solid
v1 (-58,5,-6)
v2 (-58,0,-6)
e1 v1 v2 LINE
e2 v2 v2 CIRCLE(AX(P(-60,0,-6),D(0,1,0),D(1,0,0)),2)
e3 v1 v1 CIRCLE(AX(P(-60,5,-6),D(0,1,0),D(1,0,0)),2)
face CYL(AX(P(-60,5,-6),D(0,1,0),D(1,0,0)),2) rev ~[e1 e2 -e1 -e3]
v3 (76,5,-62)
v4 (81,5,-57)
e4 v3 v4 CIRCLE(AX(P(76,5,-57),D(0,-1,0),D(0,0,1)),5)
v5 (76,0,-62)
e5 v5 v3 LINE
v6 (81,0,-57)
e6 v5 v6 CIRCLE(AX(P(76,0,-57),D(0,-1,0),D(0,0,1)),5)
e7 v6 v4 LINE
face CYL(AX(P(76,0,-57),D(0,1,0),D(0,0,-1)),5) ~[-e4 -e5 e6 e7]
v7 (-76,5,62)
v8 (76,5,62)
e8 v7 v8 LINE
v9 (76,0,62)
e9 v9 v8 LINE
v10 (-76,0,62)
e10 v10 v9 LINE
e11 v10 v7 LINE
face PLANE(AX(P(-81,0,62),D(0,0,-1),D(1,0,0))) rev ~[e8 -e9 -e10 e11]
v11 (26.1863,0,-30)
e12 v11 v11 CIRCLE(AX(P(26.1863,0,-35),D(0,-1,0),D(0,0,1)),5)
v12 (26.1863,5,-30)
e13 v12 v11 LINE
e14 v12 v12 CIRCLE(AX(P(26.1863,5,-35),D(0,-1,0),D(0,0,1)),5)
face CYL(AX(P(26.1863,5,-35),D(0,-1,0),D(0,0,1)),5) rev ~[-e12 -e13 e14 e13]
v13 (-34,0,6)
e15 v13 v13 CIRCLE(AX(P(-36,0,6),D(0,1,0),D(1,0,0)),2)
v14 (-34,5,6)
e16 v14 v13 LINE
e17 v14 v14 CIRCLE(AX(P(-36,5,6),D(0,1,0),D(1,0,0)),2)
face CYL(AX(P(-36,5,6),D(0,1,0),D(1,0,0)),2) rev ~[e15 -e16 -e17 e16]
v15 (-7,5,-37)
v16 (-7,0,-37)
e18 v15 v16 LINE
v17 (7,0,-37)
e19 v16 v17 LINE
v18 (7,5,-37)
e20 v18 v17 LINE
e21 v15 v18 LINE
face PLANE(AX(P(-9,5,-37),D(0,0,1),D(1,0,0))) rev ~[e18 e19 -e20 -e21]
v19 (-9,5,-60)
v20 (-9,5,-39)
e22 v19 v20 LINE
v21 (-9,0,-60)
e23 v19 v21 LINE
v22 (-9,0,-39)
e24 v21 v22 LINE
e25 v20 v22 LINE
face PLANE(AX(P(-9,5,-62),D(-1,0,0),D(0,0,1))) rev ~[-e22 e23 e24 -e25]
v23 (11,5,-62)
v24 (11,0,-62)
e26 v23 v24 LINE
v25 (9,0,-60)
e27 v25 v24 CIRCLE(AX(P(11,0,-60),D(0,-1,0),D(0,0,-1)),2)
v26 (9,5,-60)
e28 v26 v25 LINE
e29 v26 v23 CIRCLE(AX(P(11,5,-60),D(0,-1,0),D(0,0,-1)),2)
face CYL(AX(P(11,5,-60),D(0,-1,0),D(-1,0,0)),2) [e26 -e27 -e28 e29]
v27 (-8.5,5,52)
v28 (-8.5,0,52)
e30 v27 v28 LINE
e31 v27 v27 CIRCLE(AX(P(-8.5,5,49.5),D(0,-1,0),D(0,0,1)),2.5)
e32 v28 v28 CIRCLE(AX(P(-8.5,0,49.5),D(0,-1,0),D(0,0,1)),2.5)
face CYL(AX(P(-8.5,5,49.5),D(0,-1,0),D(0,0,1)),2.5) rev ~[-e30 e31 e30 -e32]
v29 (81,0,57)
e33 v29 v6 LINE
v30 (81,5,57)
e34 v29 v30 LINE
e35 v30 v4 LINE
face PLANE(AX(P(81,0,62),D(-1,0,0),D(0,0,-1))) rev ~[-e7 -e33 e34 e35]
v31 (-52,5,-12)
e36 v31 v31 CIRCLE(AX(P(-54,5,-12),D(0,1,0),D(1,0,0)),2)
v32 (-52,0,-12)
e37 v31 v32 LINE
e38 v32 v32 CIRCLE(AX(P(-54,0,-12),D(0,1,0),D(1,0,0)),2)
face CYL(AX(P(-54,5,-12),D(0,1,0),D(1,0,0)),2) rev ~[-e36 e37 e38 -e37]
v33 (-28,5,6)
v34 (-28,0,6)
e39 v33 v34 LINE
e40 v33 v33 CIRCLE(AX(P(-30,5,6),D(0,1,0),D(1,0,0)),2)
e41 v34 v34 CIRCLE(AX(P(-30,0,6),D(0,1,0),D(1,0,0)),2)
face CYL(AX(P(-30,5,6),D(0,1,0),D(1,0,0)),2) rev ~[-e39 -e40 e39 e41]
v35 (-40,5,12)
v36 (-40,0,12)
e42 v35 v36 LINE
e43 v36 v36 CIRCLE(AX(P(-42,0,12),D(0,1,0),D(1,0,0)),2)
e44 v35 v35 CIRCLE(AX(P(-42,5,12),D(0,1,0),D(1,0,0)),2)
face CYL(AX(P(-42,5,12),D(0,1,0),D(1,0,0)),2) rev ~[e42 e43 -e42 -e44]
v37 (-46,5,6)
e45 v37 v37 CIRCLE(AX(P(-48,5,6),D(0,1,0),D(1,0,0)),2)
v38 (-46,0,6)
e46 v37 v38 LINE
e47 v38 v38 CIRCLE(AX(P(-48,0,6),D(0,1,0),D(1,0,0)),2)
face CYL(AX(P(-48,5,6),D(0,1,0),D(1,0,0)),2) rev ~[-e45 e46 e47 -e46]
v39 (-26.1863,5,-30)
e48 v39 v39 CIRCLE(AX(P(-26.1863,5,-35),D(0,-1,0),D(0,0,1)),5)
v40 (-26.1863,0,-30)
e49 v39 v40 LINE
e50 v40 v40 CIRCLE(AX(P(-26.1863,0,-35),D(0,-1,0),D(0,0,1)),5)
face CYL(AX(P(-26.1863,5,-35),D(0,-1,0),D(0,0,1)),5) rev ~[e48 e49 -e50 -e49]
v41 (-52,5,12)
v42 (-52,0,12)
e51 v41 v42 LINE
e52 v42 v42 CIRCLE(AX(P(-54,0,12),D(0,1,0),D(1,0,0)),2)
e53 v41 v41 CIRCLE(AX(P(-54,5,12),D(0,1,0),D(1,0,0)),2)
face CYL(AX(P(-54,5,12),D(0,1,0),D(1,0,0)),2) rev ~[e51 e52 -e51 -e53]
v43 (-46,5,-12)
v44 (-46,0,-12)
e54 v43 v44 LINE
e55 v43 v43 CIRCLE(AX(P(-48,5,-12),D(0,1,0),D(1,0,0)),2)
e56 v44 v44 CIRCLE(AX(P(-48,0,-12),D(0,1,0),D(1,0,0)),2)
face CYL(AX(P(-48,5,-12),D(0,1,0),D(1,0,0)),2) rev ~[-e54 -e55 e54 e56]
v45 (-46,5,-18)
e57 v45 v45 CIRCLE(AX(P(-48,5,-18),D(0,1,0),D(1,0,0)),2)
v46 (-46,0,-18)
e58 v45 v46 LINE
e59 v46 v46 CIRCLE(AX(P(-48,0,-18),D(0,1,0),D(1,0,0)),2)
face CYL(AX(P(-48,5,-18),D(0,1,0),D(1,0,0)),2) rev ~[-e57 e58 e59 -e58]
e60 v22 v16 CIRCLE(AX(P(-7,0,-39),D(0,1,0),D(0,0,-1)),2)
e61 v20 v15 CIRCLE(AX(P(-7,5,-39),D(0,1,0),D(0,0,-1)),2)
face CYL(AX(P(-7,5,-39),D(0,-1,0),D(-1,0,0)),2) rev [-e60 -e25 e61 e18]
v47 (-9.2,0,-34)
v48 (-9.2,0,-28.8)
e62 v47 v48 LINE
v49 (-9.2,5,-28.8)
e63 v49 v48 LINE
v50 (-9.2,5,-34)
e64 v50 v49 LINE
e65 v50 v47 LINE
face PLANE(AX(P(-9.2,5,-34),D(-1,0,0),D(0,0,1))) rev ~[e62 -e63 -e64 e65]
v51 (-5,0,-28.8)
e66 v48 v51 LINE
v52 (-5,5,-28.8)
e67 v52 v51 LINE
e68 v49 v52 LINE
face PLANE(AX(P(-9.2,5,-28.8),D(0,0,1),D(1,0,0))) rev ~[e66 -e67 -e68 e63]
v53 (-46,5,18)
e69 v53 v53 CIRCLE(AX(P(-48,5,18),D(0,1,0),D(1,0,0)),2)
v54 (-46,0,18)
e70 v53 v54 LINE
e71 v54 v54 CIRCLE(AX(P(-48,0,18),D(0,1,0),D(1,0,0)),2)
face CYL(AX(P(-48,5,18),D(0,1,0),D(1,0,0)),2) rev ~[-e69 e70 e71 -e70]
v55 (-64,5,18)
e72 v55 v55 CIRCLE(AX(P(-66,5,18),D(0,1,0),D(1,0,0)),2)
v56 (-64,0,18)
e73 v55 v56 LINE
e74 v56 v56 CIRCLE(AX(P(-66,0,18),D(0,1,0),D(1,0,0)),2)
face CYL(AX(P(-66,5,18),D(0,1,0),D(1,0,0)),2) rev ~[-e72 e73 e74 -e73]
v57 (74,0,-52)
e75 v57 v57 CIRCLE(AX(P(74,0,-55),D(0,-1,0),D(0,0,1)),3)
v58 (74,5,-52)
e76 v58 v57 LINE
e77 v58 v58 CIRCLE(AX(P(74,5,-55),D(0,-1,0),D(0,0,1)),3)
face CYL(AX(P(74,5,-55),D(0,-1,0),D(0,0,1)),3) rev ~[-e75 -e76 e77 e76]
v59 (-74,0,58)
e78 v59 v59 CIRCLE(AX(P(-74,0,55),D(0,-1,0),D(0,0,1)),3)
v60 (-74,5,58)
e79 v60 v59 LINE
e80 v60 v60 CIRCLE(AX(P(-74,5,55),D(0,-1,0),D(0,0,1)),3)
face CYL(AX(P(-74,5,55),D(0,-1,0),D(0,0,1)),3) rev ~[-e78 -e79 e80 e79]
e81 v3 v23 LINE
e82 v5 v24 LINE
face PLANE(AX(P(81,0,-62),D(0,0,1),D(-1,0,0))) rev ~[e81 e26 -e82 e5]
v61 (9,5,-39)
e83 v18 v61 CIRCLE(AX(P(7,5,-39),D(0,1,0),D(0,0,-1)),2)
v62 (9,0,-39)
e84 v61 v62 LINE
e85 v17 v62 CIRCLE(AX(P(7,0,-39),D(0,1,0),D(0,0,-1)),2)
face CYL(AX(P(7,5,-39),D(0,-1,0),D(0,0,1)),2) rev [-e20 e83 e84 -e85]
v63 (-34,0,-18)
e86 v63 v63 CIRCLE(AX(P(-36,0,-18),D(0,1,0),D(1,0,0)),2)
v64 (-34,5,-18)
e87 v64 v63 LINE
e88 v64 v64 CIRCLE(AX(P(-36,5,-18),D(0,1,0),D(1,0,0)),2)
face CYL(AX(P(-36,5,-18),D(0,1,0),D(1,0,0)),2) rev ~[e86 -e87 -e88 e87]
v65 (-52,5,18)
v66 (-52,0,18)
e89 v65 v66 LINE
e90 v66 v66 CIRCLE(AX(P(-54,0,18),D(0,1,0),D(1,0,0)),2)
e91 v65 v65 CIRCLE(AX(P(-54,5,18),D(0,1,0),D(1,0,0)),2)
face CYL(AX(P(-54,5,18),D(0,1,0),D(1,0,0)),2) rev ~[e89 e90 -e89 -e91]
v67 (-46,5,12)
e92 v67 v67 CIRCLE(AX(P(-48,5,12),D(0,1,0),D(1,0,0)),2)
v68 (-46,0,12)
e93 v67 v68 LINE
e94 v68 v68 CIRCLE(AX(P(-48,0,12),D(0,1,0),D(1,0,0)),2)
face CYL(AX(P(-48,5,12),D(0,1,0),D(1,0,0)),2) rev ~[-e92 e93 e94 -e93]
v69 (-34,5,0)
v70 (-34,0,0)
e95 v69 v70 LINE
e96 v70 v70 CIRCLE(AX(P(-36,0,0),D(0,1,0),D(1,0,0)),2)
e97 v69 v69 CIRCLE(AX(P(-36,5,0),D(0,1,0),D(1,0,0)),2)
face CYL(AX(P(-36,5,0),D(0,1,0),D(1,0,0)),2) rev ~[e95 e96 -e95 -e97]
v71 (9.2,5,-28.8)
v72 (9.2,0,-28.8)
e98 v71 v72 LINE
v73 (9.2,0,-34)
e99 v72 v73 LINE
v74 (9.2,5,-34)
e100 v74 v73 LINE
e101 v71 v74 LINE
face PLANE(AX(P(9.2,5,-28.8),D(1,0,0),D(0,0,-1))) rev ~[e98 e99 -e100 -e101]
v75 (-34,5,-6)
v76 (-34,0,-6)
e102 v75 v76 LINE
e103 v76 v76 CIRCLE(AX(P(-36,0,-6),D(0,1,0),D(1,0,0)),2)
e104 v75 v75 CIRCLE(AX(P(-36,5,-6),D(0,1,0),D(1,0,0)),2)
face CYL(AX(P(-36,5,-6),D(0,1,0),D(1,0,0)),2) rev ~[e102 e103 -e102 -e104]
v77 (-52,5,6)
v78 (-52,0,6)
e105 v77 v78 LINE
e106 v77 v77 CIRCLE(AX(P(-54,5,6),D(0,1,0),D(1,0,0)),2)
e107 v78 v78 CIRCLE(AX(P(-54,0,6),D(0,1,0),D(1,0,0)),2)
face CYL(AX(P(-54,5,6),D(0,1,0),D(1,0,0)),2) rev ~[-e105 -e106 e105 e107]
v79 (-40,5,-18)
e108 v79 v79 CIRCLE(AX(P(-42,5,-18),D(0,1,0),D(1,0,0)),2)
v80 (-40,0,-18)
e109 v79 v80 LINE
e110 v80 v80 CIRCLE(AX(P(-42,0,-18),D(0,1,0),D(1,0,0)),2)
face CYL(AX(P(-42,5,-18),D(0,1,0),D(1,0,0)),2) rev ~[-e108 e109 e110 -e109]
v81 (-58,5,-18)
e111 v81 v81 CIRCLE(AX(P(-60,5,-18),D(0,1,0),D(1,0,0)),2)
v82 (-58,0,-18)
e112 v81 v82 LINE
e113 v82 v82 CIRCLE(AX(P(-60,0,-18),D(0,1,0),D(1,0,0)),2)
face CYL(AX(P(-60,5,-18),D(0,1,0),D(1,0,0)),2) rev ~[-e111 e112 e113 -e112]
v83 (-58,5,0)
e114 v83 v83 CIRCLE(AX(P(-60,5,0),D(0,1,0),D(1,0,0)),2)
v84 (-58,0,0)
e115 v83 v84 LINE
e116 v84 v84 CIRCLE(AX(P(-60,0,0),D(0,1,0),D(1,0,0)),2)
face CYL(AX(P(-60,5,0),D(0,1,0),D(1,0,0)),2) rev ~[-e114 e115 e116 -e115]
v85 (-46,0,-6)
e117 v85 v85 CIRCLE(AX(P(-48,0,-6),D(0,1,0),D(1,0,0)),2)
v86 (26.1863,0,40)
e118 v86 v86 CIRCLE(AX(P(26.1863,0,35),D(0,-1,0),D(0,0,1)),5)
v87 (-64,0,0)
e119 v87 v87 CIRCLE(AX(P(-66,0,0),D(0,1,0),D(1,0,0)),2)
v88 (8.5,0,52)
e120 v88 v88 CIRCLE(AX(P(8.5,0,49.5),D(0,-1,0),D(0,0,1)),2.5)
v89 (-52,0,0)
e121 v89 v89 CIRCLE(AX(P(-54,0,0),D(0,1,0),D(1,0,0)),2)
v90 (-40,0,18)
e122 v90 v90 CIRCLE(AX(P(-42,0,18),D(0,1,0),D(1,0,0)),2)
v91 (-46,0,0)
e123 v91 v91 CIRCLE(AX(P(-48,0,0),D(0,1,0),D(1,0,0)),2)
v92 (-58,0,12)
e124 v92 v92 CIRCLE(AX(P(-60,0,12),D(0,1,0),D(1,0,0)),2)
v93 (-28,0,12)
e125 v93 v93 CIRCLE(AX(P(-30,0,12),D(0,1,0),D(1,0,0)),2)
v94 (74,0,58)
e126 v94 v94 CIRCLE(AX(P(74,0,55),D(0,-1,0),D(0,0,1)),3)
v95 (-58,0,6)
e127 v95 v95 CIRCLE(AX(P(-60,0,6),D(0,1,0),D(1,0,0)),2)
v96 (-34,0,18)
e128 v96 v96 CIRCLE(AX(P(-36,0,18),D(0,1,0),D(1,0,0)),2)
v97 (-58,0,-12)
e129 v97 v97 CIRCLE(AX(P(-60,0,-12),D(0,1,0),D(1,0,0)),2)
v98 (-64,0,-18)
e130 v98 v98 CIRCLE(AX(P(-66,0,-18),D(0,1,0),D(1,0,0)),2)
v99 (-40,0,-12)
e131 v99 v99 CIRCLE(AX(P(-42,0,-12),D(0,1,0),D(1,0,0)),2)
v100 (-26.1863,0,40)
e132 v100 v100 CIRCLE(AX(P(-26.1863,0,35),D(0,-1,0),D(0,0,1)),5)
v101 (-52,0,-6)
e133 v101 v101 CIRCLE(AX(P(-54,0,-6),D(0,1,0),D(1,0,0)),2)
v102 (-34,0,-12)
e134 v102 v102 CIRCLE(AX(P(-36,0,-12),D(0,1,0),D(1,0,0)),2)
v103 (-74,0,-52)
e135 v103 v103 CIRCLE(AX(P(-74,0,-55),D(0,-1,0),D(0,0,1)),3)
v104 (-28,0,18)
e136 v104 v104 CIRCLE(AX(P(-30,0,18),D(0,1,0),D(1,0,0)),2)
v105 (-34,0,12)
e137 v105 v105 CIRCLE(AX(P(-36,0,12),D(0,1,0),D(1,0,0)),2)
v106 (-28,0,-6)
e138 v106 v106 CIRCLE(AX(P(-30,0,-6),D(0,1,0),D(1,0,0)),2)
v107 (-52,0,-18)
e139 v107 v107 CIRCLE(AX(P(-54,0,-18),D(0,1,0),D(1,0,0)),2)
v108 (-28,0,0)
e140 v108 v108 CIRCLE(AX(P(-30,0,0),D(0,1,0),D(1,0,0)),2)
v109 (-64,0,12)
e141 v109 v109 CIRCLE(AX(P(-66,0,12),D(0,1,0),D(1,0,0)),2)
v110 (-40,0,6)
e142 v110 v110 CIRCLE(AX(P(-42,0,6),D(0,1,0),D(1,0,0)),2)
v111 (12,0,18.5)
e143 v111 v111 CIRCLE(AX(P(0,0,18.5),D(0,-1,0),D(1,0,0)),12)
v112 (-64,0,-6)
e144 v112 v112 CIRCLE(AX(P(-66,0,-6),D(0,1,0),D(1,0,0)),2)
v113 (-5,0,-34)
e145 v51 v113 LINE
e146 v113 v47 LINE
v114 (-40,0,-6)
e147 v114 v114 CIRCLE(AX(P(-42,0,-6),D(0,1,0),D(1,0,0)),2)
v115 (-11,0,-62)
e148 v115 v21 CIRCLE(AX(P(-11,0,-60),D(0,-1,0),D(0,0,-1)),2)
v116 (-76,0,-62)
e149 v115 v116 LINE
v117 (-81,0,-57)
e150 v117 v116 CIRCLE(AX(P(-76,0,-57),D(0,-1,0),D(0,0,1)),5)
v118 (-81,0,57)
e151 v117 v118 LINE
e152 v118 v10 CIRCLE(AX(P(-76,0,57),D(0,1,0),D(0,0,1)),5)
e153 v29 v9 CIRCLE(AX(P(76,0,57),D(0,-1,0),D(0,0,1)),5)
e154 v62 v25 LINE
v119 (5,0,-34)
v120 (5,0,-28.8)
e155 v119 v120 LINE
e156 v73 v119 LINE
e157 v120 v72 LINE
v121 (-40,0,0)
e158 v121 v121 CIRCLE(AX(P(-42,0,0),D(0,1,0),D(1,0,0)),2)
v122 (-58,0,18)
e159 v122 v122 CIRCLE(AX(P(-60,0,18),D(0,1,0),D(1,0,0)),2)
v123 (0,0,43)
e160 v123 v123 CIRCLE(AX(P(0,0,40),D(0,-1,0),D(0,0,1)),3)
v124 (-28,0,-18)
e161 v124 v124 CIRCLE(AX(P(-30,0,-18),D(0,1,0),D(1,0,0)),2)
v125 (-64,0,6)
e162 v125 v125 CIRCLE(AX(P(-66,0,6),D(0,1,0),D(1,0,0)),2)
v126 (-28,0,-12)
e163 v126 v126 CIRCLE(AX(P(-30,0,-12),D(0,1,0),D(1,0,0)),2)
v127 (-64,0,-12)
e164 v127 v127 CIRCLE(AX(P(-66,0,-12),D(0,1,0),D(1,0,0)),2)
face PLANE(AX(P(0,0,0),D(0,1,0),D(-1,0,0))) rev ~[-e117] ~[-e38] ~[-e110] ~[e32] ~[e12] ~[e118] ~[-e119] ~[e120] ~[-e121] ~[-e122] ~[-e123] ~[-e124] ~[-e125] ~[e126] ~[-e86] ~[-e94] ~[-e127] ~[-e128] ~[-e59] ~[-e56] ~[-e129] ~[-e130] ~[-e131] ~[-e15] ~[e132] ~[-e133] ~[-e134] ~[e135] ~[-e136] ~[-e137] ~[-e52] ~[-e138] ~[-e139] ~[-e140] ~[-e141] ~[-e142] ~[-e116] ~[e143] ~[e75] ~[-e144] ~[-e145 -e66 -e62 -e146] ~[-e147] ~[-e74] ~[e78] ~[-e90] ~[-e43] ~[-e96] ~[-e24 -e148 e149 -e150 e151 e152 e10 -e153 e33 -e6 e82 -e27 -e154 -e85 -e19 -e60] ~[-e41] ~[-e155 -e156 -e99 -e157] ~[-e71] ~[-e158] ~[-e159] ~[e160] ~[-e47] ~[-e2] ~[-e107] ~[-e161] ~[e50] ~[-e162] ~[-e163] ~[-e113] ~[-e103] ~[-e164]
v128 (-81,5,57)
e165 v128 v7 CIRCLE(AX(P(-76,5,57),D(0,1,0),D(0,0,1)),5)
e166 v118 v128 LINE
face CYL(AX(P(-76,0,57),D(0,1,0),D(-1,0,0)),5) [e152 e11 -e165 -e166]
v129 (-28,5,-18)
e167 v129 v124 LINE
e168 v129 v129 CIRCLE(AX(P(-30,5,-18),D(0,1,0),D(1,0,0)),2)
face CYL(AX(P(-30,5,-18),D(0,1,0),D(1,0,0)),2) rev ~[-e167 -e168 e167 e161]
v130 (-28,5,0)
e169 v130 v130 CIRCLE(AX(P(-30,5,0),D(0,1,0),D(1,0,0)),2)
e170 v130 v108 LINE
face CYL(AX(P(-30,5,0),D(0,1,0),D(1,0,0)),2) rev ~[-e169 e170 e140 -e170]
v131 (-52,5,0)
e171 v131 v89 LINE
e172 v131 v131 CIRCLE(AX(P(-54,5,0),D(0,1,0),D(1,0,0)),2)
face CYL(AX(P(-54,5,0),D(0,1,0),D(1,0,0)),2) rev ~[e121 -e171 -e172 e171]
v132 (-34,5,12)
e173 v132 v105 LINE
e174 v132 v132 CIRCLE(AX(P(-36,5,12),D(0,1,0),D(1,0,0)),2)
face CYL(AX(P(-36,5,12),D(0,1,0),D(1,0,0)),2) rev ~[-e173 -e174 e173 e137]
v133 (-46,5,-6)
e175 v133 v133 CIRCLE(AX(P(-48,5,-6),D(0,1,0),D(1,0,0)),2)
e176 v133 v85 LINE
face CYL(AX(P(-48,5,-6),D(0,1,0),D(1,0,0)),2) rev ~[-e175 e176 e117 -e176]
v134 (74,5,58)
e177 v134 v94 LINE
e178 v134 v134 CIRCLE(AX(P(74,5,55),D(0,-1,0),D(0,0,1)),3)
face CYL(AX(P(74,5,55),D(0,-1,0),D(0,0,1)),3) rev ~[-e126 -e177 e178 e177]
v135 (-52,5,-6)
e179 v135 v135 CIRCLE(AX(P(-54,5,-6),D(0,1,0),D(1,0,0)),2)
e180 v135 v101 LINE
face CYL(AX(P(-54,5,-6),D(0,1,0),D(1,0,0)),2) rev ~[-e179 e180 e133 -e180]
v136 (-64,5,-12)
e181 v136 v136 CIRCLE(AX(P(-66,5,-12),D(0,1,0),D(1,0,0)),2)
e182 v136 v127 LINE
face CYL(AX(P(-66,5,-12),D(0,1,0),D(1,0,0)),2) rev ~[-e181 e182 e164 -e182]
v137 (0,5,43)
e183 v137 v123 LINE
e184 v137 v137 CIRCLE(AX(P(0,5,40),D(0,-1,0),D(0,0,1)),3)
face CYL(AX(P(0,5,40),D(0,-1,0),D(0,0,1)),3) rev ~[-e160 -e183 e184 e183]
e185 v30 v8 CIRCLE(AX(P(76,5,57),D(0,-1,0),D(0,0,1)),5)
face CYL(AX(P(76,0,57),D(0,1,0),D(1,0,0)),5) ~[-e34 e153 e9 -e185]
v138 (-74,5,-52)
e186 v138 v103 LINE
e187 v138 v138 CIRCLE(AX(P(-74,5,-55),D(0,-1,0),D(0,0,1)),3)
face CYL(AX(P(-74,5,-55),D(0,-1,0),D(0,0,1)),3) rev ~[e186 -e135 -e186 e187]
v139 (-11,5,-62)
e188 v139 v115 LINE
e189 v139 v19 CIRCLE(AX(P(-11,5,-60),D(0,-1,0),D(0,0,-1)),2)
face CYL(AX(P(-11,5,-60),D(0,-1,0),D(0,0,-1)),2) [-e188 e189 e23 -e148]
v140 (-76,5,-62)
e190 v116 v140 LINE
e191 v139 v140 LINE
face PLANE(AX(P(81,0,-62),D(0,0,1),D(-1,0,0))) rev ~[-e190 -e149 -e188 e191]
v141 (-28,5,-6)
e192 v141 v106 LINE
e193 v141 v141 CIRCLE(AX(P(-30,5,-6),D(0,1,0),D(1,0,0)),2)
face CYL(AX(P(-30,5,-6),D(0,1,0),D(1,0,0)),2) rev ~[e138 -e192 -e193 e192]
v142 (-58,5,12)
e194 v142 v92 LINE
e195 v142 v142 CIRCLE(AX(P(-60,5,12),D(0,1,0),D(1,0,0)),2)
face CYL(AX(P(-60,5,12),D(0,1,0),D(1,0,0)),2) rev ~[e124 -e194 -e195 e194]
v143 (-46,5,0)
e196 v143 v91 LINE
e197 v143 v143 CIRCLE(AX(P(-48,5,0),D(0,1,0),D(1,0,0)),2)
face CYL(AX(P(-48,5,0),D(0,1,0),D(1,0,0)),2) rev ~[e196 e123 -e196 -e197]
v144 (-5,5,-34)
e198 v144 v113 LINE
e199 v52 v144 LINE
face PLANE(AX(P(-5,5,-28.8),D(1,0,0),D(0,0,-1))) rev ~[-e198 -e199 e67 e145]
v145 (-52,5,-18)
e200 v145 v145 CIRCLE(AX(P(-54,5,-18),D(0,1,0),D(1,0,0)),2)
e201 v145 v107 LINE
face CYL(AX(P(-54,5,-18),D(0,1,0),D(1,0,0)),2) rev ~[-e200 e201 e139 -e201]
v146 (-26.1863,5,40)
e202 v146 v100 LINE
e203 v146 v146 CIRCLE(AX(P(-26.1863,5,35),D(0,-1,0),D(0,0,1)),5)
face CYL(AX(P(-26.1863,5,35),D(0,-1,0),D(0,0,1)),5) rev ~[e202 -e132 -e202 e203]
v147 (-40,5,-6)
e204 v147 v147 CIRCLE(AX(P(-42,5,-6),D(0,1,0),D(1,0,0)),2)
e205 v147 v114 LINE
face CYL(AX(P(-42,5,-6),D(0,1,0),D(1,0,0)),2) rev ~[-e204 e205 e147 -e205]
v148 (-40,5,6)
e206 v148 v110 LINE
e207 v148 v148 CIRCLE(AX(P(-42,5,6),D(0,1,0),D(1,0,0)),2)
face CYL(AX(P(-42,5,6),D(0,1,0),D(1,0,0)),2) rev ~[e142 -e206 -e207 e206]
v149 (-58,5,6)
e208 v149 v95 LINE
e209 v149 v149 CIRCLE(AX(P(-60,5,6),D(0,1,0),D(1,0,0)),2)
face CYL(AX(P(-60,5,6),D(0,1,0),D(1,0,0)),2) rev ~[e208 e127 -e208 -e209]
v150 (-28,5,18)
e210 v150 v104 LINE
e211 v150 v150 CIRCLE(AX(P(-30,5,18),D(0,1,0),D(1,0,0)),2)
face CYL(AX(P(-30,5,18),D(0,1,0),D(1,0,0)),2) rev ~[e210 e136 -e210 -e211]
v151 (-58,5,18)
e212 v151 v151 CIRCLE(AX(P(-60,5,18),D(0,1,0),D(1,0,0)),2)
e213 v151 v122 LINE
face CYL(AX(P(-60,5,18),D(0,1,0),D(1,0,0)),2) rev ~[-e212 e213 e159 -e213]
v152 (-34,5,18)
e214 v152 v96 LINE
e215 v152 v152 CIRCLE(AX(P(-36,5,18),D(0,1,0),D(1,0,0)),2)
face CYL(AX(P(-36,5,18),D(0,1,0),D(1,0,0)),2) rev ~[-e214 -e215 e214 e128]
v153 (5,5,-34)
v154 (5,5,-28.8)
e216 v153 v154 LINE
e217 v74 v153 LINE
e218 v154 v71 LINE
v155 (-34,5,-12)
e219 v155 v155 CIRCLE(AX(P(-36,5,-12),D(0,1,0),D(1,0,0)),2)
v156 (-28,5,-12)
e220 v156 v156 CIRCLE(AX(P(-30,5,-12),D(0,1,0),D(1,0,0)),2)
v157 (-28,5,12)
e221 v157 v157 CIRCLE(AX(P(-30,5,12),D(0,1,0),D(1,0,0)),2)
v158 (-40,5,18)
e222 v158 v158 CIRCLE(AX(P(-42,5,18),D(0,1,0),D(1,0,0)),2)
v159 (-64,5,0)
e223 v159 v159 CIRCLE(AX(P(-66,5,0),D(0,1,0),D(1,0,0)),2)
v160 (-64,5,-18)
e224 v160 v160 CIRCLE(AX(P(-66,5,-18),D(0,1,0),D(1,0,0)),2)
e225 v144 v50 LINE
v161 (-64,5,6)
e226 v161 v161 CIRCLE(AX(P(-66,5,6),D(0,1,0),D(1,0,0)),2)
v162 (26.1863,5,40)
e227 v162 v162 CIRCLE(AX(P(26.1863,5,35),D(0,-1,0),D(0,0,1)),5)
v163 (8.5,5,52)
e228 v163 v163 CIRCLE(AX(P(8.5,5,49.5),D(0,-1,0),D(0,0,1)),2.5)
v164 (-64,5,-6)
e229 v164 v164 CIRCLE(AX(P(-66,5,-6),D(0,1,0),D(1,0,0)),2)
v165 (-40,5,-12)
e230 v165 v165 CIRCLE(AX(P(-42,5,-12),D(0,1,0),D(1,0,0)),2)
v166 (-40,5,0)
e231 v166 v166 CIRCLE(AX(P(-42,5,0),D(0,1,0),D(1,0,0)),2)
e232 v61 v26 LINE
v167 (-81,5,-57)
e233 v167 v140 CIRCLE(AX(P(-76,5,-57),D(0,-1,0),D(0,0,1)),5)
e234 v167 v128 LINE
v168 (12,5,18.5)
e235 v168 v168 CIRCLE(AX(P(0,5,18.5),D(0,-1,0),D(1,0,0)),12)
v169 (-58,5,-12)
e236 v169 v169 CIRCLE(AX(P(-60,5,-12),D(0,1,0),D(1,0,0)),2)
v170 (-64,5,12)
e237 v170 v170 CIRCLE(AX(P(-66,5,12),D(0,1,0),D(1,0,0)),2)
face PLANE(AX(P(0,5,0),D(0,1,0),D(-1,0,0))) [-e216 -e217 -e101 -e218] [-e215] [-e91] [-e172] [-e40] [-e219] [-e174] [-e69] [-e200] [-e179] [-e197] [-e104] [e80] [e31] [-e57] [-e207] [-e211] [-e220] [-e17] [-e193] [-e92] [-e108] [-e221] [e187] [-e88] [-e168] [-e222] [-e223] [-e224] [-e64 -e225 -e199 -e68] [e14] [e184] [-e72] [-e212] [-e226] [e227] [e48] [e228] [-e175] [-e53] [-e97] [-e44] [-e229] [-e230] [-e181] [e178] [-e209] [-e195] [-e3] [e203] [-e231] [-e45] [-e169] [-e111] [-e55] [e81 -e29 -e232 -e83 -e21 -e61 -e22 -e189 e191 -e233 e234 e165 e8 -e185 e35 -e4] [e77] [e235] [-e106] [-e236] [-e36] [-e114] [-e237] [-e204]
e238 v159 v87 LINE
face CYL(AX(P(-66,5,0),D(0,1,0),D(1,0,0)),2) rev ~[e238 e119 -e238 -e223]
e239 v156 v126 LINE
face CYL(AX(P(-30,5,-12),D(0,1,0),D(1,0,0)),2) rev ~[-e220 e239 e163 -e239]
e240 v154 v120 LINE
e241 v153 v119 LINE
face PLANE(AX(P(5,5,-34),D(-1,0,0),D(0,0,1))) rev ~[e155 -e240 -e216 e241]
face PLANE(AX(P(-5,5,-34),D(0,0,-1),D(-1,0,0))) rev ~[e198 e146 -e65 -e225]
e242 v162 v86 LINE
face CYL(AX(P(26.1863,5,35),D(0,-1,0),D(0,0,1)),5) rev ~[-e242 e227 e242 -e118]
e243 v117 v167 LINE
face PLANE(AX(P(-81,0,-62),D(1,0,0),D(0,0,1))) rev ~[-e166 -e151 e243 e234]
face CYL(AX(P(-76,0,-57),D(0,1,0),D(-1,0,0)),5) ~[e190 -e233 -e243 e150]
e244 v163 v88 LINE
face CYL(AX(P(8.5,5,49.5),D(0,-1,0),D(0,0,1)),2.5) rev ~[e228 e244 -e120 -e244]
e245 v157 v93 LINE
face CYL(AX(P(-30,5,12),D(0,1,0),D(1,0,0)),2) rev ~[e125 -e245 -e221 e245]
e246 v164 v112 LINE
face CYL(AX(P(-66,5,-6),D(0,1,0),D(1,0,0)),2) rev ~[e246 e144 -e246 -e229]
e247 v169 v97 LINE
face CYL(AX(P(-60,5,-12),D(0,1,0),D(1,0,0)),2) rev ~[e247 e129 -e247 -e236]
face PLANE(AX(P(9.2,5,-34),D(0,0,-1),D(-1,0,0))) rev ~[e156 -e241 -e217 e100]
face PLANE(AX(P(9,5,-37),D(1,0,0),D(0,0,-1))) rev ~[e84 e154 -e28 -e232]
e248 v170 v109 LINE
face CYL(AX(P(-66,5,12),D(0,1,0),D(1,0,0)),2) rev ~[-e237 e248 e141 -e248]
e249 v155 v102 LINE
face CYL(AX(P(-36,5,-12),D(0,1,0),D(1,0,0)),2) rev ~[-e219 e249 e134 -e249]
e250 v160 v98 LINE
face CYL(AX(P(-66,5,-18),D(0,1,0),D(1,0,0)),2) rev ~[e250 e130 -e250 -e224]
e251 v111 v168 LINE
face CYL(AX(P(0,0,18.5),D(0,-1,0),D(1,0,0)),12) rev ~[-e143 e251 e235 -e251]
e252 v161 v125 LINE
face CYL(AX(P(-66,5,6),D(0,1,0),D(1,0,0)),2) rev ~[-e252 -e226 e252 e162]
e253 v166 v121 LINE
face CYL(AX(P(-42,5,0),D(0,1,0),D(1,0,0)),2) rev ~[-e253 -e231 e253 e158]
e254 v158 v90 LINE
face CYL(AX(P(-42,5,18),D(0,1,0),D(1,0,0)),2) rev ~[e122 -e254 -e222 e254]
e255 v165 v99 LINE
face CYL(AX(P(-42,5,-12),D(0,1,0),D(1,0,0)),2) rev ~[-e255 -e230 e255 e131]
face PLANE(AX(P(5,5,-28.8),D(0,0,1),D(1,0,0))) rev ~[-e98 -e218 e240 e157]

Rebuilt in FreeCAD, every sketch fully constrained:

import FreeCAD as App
import Part
import Sketcher
from FreeCAD import Vector
Q = App.Units.Quantity


def edges_at(feature, points):
    """Names of the edges that pass closest to the given points."""
    edges = feature.Shape.Edges
    near = lambda p: min(range(len(edges)), key=lambda i: edges[i].distToShape(Part.Vertex(*p))[0])
    return sorted({f"Edge{near(p) + 1}" for p in points})


def add_polygon(sketch, points):
    """Adds a closed chain of lines whose ends are joined by coincident constraints."""
    first, n = sketch.GeometryCount, len(points)
    for a, b in zip(points, points[1:] + points[:1]):
        sketch.addGeometry(Part.LineSegment(App.Vector(*a, 0), App.Vector(*b, 0)), False)
    for i in range(n):
        sketch.addConstraint(Sketcher.Constraint("Coincident", first + i, 2, first + (i + 1) % n, 1))

doc = App.newDocument("Part")
params = doc.addObject("Spreadsheet::Sheet", "Params")
for row, (alias, value) in enumerate([
    ("sketch1_width", "162 mm"),
    ("sketch1_height", "124 mm"),
    ("pad1_length", "5 mm"),
    ("fillet_radius", "5 mm"),
    ("sketch2_diameter", "6 mm"),
    ("hole_diameter", "6 mm"),
    ("sketch3_diameter", "10 mm"),
    ("hole2_diameter", "10 mm"),
    ("sketch4_diameter", "24 mm"),
    ("pocket1_length", "10 mm"),
    ("sketch5_width", "18 mm"),
    ("sketch5_height", "25 mm"),
    ("sketch6_diameter", "5 mm"),
    ("hole3_diameter", "5 mm"),
    ("sketch7_diameter", "6 mm"),
    ("hole4_diameter", "6 mm"),
    ("hole4_depth", "20 mm"),
    ("sketch8_width", "4.2 mm"),
    ("sketch8_height", "5.2 mm"),
    ("pocket3_length", "5 mm"),
    ("sketch9_diameter", "4 mm"),
    ("fillet2_radius", "2 mm"),
], start=1):
    params.set(f"A{row}", alias)
    params.set(f"B{row}", "=" + value)
    params.setAlias(f"B{row}", alias)

body = doc.addObject("PartDesign::Body", "Body")

sketch1 = body.newObject("Sketcher::SketchObject", "Sketch")
sketch1.AttachmentSupport = (doc.getObject("XZ_Plane"), [""])
sketch1.MapMode = "FlatFace"
add_polygon(sketch1, [(-81, -62), (-81, 62), (81, 62), (81, -62)])
sketch1.addConstraint([
    Sketcher.Constraint("Vertical", 0),
    Sketcher.Constraint("Horizontal", 1),
    Sketcher.Constraint("Vertical", 2),
    Sketcher.Constraint("Horizontal", 3),
    Sketcher.Constraint("Symmetric", 0, 2, 2, 2, -1, 1),
    Sketcher.Constraint("DistanceX", 1, 1, 1, 2, Q("162 mm")),
    Sketcher.Constraint("DistanceY", 0, 1, 0, 2, Q("124 mm")),
])
sketch1.setExpression("Constraints[9]", "Params.sketch1_width")
sketch1.setExpression("Constraints[10]", "Params.sketch1_height")
pad1 = body.newObject("PartDesign::Pad", "Pad")
pad1.Profile = sketch1
pad1.setExpression("Length", "Params.pad1_length")
pad1.Reversed = True
doc.recompute()

fillet = body.newObject("PartDesign::Fillet", "Fillet")
fillet.Base = (pad1, edges_at(pad1, [
    (81, 2.5, 62),
    (-81, 2.5, 62),
    (-81, 2.5, -62),
    (81, 2.5, -62),
]))
fillet.setExpression("Radius", "Params.fillet_radius")

sketch2 = body.newObject("Sketcher::SketchObject", "Sketch001")
sketch2.AttachmentSupport = (doc.getObject("XZ_Plane"), [""])
sketch2.MapMode = "FlatFace"
sketch2.AttachmentOffset = App.Placement(Vector(0, 0, -5), App.Rotation())
sketch2.addGeometry([
    Part.Circle(Vector(74, 55, 0), Vector(0, 0, 1), 3),
    Part.Circle(Vector(-74, 55, 0), Vector(0, 0, 1), 3),
    Part.Circle(Vector(74, -55, 0), Vector(0, 0, 1), 3),
    Part.Circle(Vector(-74, -55, 0), Vector(0, 0, 1), 3),
], False)
sketch2.addConstraint([
    Sketcher.Constraint("Equal", 0, 1),
    Sketcher.Constraint("Equal", 1, 2),
    Sketcher.Constraint("Equal", 2, 3),
    Sketcher.Constraint("Symmetric", 1, 3, 2, 3, -1, 1),
    Sketcher.Constraint("Symmetric", 0, 3, 3, 3, -1, 1),
    Sketcher.Constraint("Symmetric", 0, 3, 1, 3, -2),
    Sketcher.Constraint("Diameter", 0, Q("6 mm")),
    Sketcher.Constraint("DistanceX", -1, 1, 0, 3, Q("74 mm")),
    Sketcher.Constraint("DistanceY", -1, 1, 0, 3, Q("55 mm")),
])
sketch2.setExpression("Constraints[6]", "Params.sketch2_diameter")
doc.recompute()
hole = body.newObject("PartDesign::Hole", "Hole")
hole.Profile = sketch2
hole.ThreadType = "None"
hole.setExpression("Diameter", "Params.hole_diameter")
hole.DepthType = "ThroughAll"
hole.Reversed = True

sketch3 = body.newObject("Sketcher::SketchObject", "Sketch002")
sketch3.AttachmentSupport = (doc.getObject("XZ_Plane"), [""])
sketch3.MapMode = "FlatFace"
sketch3.AttachmentOffset = App.Placement(Vector(0, 0, -5), App.Rotation())
sketch3.addGeometry([
    Part.Circle(Vector(-26.1863, 35, 0), Vector(0, 0, 1), 5),
    Part.Circle(Vector(26.1863, 35, 0), Vector(0, 0, 1), 5),
    Part.Circle(Vector(26.1863, -35, 0), Vector(0, 0, 1), 5),
    Part.Circle(Vector(-26.1863, -35, 0), Vector(0, 0, 1), 5),
], False)
sketch3.addConstraint([
    Sketcher.Constraint("Equal", 0, 1),
    Sketcher.Constraint("Equal", 1, 2),
    Sketcher.Constraint("Equal", 2, 3),
    Sketcher.Constraint("Symmetric", 0, 3, 2, 3, -1, 1),
    Sketcher.Constraint("Symmetric", 1, 3, 3, 3, -1, 1),
    Sketcher.Constraint("Symmetric", 0, 3, 1, 3, -2),
    Sketcher.Constraint("Diameter", 0, Q("10 mm")),
    Sketcher.Constraint("DistanceY", -1, 1, 0, 3, Q("35 mm")),
    Sketcher.Constraint("DistanceX", 0, 3, -1, 1, Q("26.1863 mm")),
])
sketch3.setExpression("Constraints[6]", "Params.sketch3_diameter")
doc.recompute()
hole2 = body.newObject("PartDesign::Hole", "Hole001")
hole2.Profile = sketch3
hole2.ThreadType = "None"
hole2.setExpression("Diameter", "Params.hole2_diameter")
hole2.DepthType = "ThroughAll"
hole2.Reversed = True

sketch4 = body.newObject("Sketcher::SketchObject", "Sketch003")
sketch4.AttachmentSupport = (doc.getObject("XZ_Plane"), [""])
sketch4.MapMode = "FlatFace"
sketch4.addGeometry(Part.Circle(Vector(0, 18.5, 0), Vector(0, 0, 1), 12), False)
sketch4.addConstraint([
    Sketcher.Constraint("PointOnObject", 0, 3, -2),
    Sketcher.Constraint("Diameter", 0, Q("24 mm")),
    Sketcher.Constraint("DistanceY", -1, 1, 0, 3, Q("18.5 mm")),
])
sketch4.setExpression("Constraints[1]", "Params.sketch4_diameter")
pocket1 = body.newObject("PartDesign::Pocket", "Pocket")
pocket1.Profile = sketch4
pocket1.setExpression("Length", "Params.pocket1_length")

sketch5 = body.newObject("Sketcher::SketchObject", "Sketch004")
sketch5.AttachmentSupport = (doc.getObject("XZ_Plane"), [""])
sketch5.MapMode = "FlatFace"
sketch5.AttachmentOffset = App.Placement(Vector(0, 0, -5), App.Rotation())
add_polygon(sketch5, [(9, -37), (9, -62), (-9, -62), (-9, -37)])
sketch5.addConstraint([
    Sketcher.Constraint("Vertical", 0),
    Sketcher.Constraint("Horizontal", 1),
    Sketcher.Constraint("Vertical", 2),
    Sketcher.Constraint("Horizontal", 3),
    Sketcher.Constraint("DistanceX", 1, 2, 1, 1, Q("18 mm")),
    Sketcher.Constraint("DistanceX", -1, 1, 0, 2, Q("9 mm")),
    Sketcher.Constraint("DistanceY", 0, 2, 0, 1, Q("25 mm")),
    Sketcher.Constraint("DistanceY", 0, 2, -1, 1, Q("62 mm")),
])
sketch5.setExpression("Constraints[8]", "Params.sketch5_width")
sketch5.setExpression("Constraints[10]", "Params.sketch5_height")
pocket2 = body.newObject("PartDesign::Pocket", "Pocket001")
pocket2.Profile = sketch5
pocket2.Type = "ThroughAll"
pocket2.Reversed = True

sketch6 = body.newObject("Sketcher::SketchObject", "Sketch005")
sketch6.AttachmentSupport = (doc.getObject("XZ_Plane"), [""])
sketch6.MapMode = "FlatFace"
sketch6.AttachmentOffset = App.Placement(Vector(0, 0, -5), App.Rotation())
sketch6.addGeometry([
    Part.Circle(Vector(-8.5, 49.5, 0), Vector(0, 0, 1), 2.5),
    Part.Circle(Vector(8.5, 49.5, 0), Vector(0, 0, 1), 2.5),
], False)
sketch6.addConstraint([
    Sketcher.Constraint("Equal", 0, 1),
    Sketcher.Constraint("Symmetric", 0, 3, 1, 3, -2),
    Sketcher.Constraint("Diameter", 0, Q("5 mm")),
    Sketcher.Constraint("DistanceX", 0, 3, 1, 3, Q("17 mm")),
    Sketcher.Constraint("DistanceY", -1, 1, 0, 3, Q("49.5 mm")),
])
sketch6.setExpression("Constraints[2]", "Params.sketch6_diameter")
doc.recompute()
hole3 = body.newObject("PartDesign::Hole", "Hole002")
hole3.Profile = sketch6
hole3.ThreadType = "None"
hole3.setExpression("Diameter", "Params.hole3_diameter")
hole3.DepthType = "ThroughAll"
hole3.Reversed = True

sketch7 = body.newObject("Sketcher::SketchObject", "Sketch006")
sketch7.AttachmentSupport = (doc.getObject("XZ_Plane"), [""])
sketch7.MapMode = "FlatFace"
sketch7.AttachmentOffset = App.Placement(Vector(0, 0, -5), App.Rotation())
sketch7.addGeometry(Part.Circle(Vector(0, 40, 0), Vector(0, 0, 1), 3), False)
sketch7.addConstraint([
    Sketcher.Constraint("PointOnObject", 0, 3, -2),
    Sketcher.Constraint("Diameter", 0, Q("6 mm")),
    Sketcher.Constraint("DistanceY", -1, 1, 0, 3, Q("40 mm")),
])
sketch7.setExpression("Constraints[1]", "Params.sketch7_diameter")
doc.recompute()
hole4 = body.newObject("PartDesign::Hole", "Hole003")
hole4.Profile = sketch7
hole4.ThreadType = "None"
hole4.setExpression("Diameter", "Params.hole4_diameter")
hole4.DepthType = "Dimension"
hole4.setExpression("Depth", "Params.hole4_depth")
hole4.DrillPoint = "Angled"
hole4.DrillPointAngle = 118
hole4.Reversed = True

sketch8 = body.newObject("Sketcher::SketchObject", "Sketch007")
sketch8.AttachmentSupport = (doc.getObject("XZ_Plane"), [""])
sketch8.MapMode = "FlatFace"
sketch8.AttachmentOffset = App.Placement(Vector(0, 0, -5), App.Rotation())
add_polygon(sketch8, [(9.2, -28.8), (9.2, -34), (5, -34), (5, -28.8)])
add_polygon(sketch8, [(-5, -28.8), (-5, -34), (-9.2, -34), (-9.2, -28.8)])
sketch8.addConstraint([
    Sketcher.Constraint("Vertical", 0),
    Sketcher.Constraint("Horizontal", 1),
    Sketcher.Constraint("Vertical", 2),
    Sketcher.Constraint("Horizontal", 3),
    Sketcher.Constraint("Vertical", 4),
    Sketcher.Constraint("Horizontal", 5),
    Sketcher.Constraint("Vertical", 6),
    Sketcher.Constraint("Horizontal", 7),
    Sketcher.Constraint("Symmetric", 1, 2, 4, 2, -2),
    Sketcher.Constraint("Symmetric", 3, 2, 6, 2, -2),
    Sketcher.Constraint("DistanceX", 1, 2, 1, 1, Q("4.2 mm")),
    Sketcher.Constraint("DistanceY", 0, 2, 0, 1, Q("5.2 mm")),
    Sketcher.Constraint("DistanceX", 5, 2, 0, 2, Q("18.4 mm")),
    Sketcher.Constraint("DistanceY", 0, 2, -1, 1, Q("34 mm")),
])
sketch8.setExpression("Constraints[18]", "Params.sketch8_width")
sketch8.setExpression("Constraints[19]", "Params.sketch8_height")
pocket3 = body.newObject("PartDesign::Pocket", "Pocket002")
pocket3.Profile = sketch8
pocket3.setExpression("Length", "Params.pocket3_length")
pocket3.Reversed = True

sketch9 = body.newObject("Sketcher::SketchObject", "Sketch008")
sketch9.AttachmentSupport = (doc.getObject("XZ_Plane"), [""])
sketch9.MapMode = "FlatFace"
sketch9.AttachmentOffset = App.Placement(Vector(0, 0, -5), App.Rotation())
sketch9.addGeometry([
    Part.Circle(Vector(-66, -18, 0), Vector(0, 0, 1), 2),
    Part.Circle(Vector(-66, -12, 0), Vector(0, 0, 1), 2),
    Part.Circle(Vector(-66, -6, 0), Vector(0, 0, 1), 2),
    Part.Circle(Vector(-66, 0, 0), Vector(0, 0, 1), 2),
    Part.Circle(Vector(-66, 6, 0), Vector(0, 0, 1), 2),
    Part.Circle(Vector(-66, 12, 0), Vector(0, 0, 1), 2),
    Part.Circle(Vector(-66, 18, 0), Vector(0, 0, 1), 2),
    Part.Circle(Vector(-60, -18, 0), Vector(0, 0, 1), 2),
    Part.Circle(Vector(-60, -12, 0), Vector(0, 0, 1), 2),
    Part.Circle(Vector(-60, -6, 0), Vector(0, 0, 1), 2),
    Part.Circle(Vector(-60, 0, 0), Vector(0, 0, 1), 2),
    Part.Circle(Vector(-60, 6, 0), Vector(0, 0, 1), 2),
    Part.Circle(Vector(-60, 12, 0), Vector(0, 0, 1), 2),
    Part.Circle(Vector(-60, 18, 0), Vector(0, 0, 1), 2),
    Part.Circle(Vector(-54, -18, 0), Vector(0, 0, 1), 2),
    Part.Circle(Vector(-54, -12, 0), Vector(0, 0, 1), 2),
    Part.Circle(Vector(-54, -6, 0), Vector(0, 0, 1), 2),
    Part.Circle(Vector(-54, 0, 0), Vector(0, 0, 1), 2),
    Part.Circle(Vector(-54, 6, 0), Vector(0, 0, 1), 2),
    Part.Circle(Vector(-54, 12, 0), Vector(0, 0, 1), 2),
    Part.Circle(Vector(-54, 18, 0), Vector(0, 0, 1), 2),
    Part.Circle(Vector(-48, -18, 0), Vector(0, 0, 1), 2),
    Part.Circle(Vector(-48, -12, 0), Vector(0, 0, 1), 2),
    Part.Circle(Vector(-48, -6, 0), Vector(0, 0, 1), 2),
    Part.Circle(Vector(-48, 0, 0), Vector(0, 0, 1), 2),
    Part.Circle(Vector(-48, 6, 0), Vector(0, 0, 1), 2),
    Part.Circle(Vector(-48, 12, 0), Vector(0, 0, 1), 2),
    Part.Circle(Vector(-48, 18, 0), Vector(0, 0, 1), 2),
    Part.Circle(Vector(-42, -18, 0), Vector(0, 0, 1), 2),
    Part.Circle(Vector(-42, -12, 0), Vector(0, 0, 1), 2),
    Part.Circle(Vector(-42, -6, 0), Vector(0, 0, 1), 2),
    Part.Circle(Vector(-42, 0, 0), Vector(0, 0, 1), 2),
    Part.Circle(Vector(-42, 6, 0), Vector(0, 0, 1), 2),
    Part.Circle(Vector(-42, 12, 0), Vector(0, 0, 1), 2),
    Part.Circle(Vector(-42, 18, 0), Vector(0, 0, 1), 2),
    Part.Circle(Vector(-36, -18, 0), Vector(0, 0, 1), 2),
    Part.Circle(Vector(-36, -12, 0), Vector(0, 0, 1), 2),
    Part.Circle(Vector(-36, -6, 0), Vector(0, 0, 1), 2),
    Part.Circle(Vector(-36, 0, 0), Vector(0, 0, 1), 2),
    Part.Circle(Vector(-36, 6, 0), Vector(0, 0, 1), 2),
    Part.Circle(Vector(-36, 12, 0), Vector(0, 0, 1), 2),
    Part.Circle(Vector(-36, 18, 0), Vector(0, 0, 1), 2),
    Part.Circle(Vector(-30, -18, 0), Vector(0, 0, 1), 2),
    Part.Circle(Vector(-30, -12, 0), Vector(0, 0, 1), 2),
    Part.Circle(Vector(-30, -6, 0), Vector(0, 0, 1), 2),
    Part.Circle(Vector(-30, 0, 0), Vector(0, 0, 1), 2),
    Part.Circle(Vector(-30, 6, 0), Vector(0, 0, 1), 2),
    Part.Circle(Vector(-30, 12, 0), Vector(0, 0, 1), 2),
    Part.Circle(Vector(-30, 18, 0), Vector(0, 0, 1), 2),
], False)
sketch9.addConstraint([
    Sketcher.Constraint("Equal", 0, 1),
    Sketcher.Constraint("Equal", 1, 2),
    Sketcher.Constraint("Equal", 2, 3),
    Sketcher.Constraint("Equal", 3, 4),
    Sketcher.Constraint("Equal", 4, 5),
    Sketcher.Constraint("Equal", 5, 6),
    Sketcher.Constraint("Equal", 6, 7),
    Sketcher.Constraint("Equal", 7, 8),
    Sketcher.Constraint("Equal", 8, 9),
    Sketcher.Constraint("Equal", 9, 10),
    Sketcher.Constraint("Equal", 10, 11),
    Sketcher.Constraint("Equal", 11, 12),
    Sketcher.Constraint("Equal", 12, 13),
    Sketcher.Constraint("Equal", 13, 14),
    Sketcher.Constraint("Equal", 14, 15),
    Sketcher.Constraint("Equal", 15, 16),
    Sketcher.Constraint("Equal", 16, 17),
    Sketcher.Constraint("Equal", 17, 18),
    Sketcher.Constraint("Equal", 18, 19),
    Sketcher.Constraint("Equal", 19, 20),
    Sketcher.Constraint("Equal", 20, 21),
    Sketcher.Constraint("Equal", 21, 22),
    Sketcher.Constraint("Equal", 22, 23),
    Sketcher.Constraint("Equal", 23, 24),
    Sketcher.Constraint("Equal", 24, 25),
    Sketcher.Constraint("Equal", 25, 26),
    Sketcher.Constraint("Equal", 26, 27),
    Sketcher.Constraint("Equal", 27, 28),
    Sketcher.Constraint("Equal", 28, 29),
    Sketcher.Constraint("Equal", 29, 30),
    Sketcher.Constraint("Equal", 30, 31),
    Sketcher.Constraint("Equal", 31, 32),
    Sketcher.Constraint("Equal", 32, 33),
    Sketcher.Constraint("Equal", 33, 34),
    Sketcher.Constraint("Equal", 34, 35),
    Sketcher.Constraint("Equal", 35, 36),
    Sketcher.Constraint("Equal", 36, 37),
    Sketcher.Constraint("Equal", 37, 38),
    Sketcher.Constraint("Equal", 38, 39),
    Sketcher.Constraint("Equal", 39, 40),
    Sketcher.Constraint("Equal", 40, 41),
    Sketcher.Constraint("Equal", 41, 42),
    Sketcher.Constraint("Equal", 42, 43),
    Sketcher.Constraint("Equal", 43, 44),
    Sketcher.Constraint("Equal", 44, 45),
    Sketcher.Constraint("Equal", 45, 46),
    Sketcher.Constraint("Equal", 46, 47),
    Sketcher.Constraint("Equal", 47, 48),
    Sketcher.Constraint("Symmetric", 2, 3, 4, 3, -1),
    Sketcher.Constraint("Symmetric", 1, 3, 5, 3, -1),
    Sketcher.Constraint("Symmetric", 0, 3, 6, 3, -1),
    Sketcher.Constraint("Symmetric", 9, 3, 11, 3, -1),
    Sketcher.Constraint("Symmetric", 8, 3, 12, 3, -1),
    Sketcher.Constraint("Symmetric", 7, 3, 13, 3, -1),
    Sketcher.Constraint("Symmetric", 16, 3, 18, 3, -1),
    Sketcher.Constraint("Symmetric", 15, 3, 19, 3, -1),
    Sketcher.Constraint("Symmetric", 14, 3, 20, 3, -1),
    Sketcher.Constraint("Symmetric", 23, 3, 25, 3, -1),
    Sketcher.Constraint("Symmetric", 22, 3, 26, 3, -1),
    Sketcher.Constraint("Symmetric", 21, 3, 27, 3, -1),
    Sketcher.Constraint("Symmetric", 30, 3, 32, 3, -1),
    Sketcher.Constraint("Symmetric", 29, 3, 33, 3, -1),
    Sketcher.Constraint("Symmetric", 28, 3, 34, 3, -1),
    Sketcher.Constraint("Symmetric", 37, 3, 39, 3, -1),
    Sketcher.Constraint("Symmetric", 36, 3, 40, 3, -1),
    Sketcher.Constraint("Symmetric", 35, 3, 41, 3, -1),
    Sketcher.Constraint("Symmetric", 44, 3, 46, 3, -1),
    Sketcher.Constraint("Symmetric", 43, 3, 47, 3, -1),
    Sketcher.Constraint("Symmetric", 42, 3, 48, 3, -1),
    Sketcher.Constraint("PointOnObject", 3, 3, -1),
    Sketcher.Constraint("PointOnObject", 10, 3, -1),
    Sketcher.Constraint("PointOnObject", 17, 3, -1),
    Sketcher.Constraint("PointOnObject", 24, 3, -1),
    Sketcher.Constraint("PointOnObject", 31, 3, -1),
    Sketcher.Constraint("PointOnObject", 38, 3, -1),
    Sketcher.Constraint("PointOnObject", 45, 3, -1),
    Sketcher.Constraint("Horizontal", 0, 3, 7, 3),
    Sketcher.Constraint("Horizontal", 1, 3, 8, 3),
    Sketcher.Constraint("Horizontal", 2, 3, 9, 3),
    Sketcher.Constraint("Horizontal", 7, 3, 14, 3),
    Sketcher.Constraint("Horizontal", 8, 3, 15, 3),
    Sketcher.Constraint("Horizontal", 9, 3, 16, 3),
    Sketcher.Constraint("Horizontal", 14, 3, 21, 3),
    Sketcher.Constraint("Horizontal", 15, 3, 22, 3),
    Sketcher.Constraint("Horizontal", 16, 3, 23, 3),
    Sketcher.Constraint("Horizontal", 21, 3, 28, 3),
    Sketcher.Constraint("Horizontal", 22, 3, 29, 3),
    Sketcher.Constraint("Horizontal", 23, 3, 30, 3),
    Sketcher.Constraint("Horizontal", 28, 3, 35, 3),
    Sketcher.Constraint("Horizontal", 29, 3, 36, 3),
    Sketcher.Constraint("Horizontal", 30, 3, 37, 3),
    Sketcher.Constraint("Horizontal", 35, 3, 42, 3),
    Sketcher.Constraint("Horizontal", 36, 3, 43, 3),
    Sketcher.Constraint("Horizontal", 37, 3, 44, 3),
    Sketcher.Constraint("Vertical", 0, 3, 1, 3),
    Sketcher.Constraint("Vertical", 1, 3, 2, 3),
    Sketcher.Constraint("Vertical", 2, 3, 3, 3),
    Sketcher.Constraint("Vertical", 7, 3, 8, 3),
    Sketcher.Constraint("Vertical", 8, 3, 9, 3),
    Sketcher.Constraint("Vertical", 9, 3, 10, 3),
    Sketcher.Constraint("Vertical", 14, 3, 15, 3),
    Sketcher.Constraint("Vertical", 15, 3, 16, 3),
    Sketcher.Constraint("Vertical", 16, 3, 17, 3),
    Sketcher.Constraint("Vertical", 21, 3, 22, 3),
    Sketcher.Constraint("Vertical", 22, 3, 23, 3),
    Sketcher.Constraint("Vertical", 23, 3, 24, 3),
    Sketcher.Constraint("Vertical", 28, 3, 29, 3),
    Sketcher.Constraint("Vertical", 29, 3, 30, 3),
    Sketcher.Constraint("Vertical", 30, 3, 31, 3),
    Sketcher.Constraint("Vertical", 35, 3, 36, 3),
    Sketcher.Constraint("Vertical", 36, 3, 37, 3),
    Sketcher.Constraint("Vertical", 37, 3, 38, 3),
    Sketcher.Constraint("Vertical", 42, 3, 43, 3),
    Sketcher.Constraint("Vertical", 43, 3, 44, 3),
    Sketcher.Constraint("Vertical", 44, 3, 45, 3),
    Sketcher.Constraint("Diameter", 0, Q("4 mm")),
    Sketcher.Constraint("DistanceY", 2, 3, -1, 1, Q("6 mm")),
    Sketcher.Constraint("DistanceY", 0, 3, 1, 3, Q("6 mm")),
    Sketcher.Constraint("DistanceY", 1, 3, 2, 3, Q("6 mm")),
    Sketcher.Constraint("DistanceX", 0, 3, 7, 3, Q("6 mm")),
    Sketcher.Constraint("DistanceX", 7, 3, 14, 3, Q("6 mm")),
    Sketcher.Constraint("DistanceX", 14, 3, 21, 3, Q("6 mm")),
    Sketcher.Constraint("DistanceX", 21, 3, 28, 3, Q("6 mm")),
    Sketcher.Constraint("DistanceX", 28, 3, 35, 3, Q("6 mm")),
    Sketcher.Constraint("DistanceX", 35, 3, 42, 3, Q("6 mm")),
    Sketcher.Constraint("DistanceX", 0, 3, -1, 1, Q("66 mm")),
])
sketch9.setExpression("Constraints[115]", "Params.sketch9_diameter")
pocket4 = body.newObject("PartDesign::Pocket", "Pocket003")
pocket4.Profile = sketch9
pocket4.Type = "ThroughAll"
pocket4.Reversed = True
doc.recompute()

fillet2 = body.newObject("PartDesign::Fillet", "Fillet001")
fillet2.Base = (pocket4, edges_at(pocket4, [
    (-9, 2.5, -62),
    (-9, 2.5, -37),
    (9, 2.5, -37),
    (9, 2.5, -62),
]))
fillet2.setExpression("Radius", "Params.fillet2_radius")

doc.recompute()
